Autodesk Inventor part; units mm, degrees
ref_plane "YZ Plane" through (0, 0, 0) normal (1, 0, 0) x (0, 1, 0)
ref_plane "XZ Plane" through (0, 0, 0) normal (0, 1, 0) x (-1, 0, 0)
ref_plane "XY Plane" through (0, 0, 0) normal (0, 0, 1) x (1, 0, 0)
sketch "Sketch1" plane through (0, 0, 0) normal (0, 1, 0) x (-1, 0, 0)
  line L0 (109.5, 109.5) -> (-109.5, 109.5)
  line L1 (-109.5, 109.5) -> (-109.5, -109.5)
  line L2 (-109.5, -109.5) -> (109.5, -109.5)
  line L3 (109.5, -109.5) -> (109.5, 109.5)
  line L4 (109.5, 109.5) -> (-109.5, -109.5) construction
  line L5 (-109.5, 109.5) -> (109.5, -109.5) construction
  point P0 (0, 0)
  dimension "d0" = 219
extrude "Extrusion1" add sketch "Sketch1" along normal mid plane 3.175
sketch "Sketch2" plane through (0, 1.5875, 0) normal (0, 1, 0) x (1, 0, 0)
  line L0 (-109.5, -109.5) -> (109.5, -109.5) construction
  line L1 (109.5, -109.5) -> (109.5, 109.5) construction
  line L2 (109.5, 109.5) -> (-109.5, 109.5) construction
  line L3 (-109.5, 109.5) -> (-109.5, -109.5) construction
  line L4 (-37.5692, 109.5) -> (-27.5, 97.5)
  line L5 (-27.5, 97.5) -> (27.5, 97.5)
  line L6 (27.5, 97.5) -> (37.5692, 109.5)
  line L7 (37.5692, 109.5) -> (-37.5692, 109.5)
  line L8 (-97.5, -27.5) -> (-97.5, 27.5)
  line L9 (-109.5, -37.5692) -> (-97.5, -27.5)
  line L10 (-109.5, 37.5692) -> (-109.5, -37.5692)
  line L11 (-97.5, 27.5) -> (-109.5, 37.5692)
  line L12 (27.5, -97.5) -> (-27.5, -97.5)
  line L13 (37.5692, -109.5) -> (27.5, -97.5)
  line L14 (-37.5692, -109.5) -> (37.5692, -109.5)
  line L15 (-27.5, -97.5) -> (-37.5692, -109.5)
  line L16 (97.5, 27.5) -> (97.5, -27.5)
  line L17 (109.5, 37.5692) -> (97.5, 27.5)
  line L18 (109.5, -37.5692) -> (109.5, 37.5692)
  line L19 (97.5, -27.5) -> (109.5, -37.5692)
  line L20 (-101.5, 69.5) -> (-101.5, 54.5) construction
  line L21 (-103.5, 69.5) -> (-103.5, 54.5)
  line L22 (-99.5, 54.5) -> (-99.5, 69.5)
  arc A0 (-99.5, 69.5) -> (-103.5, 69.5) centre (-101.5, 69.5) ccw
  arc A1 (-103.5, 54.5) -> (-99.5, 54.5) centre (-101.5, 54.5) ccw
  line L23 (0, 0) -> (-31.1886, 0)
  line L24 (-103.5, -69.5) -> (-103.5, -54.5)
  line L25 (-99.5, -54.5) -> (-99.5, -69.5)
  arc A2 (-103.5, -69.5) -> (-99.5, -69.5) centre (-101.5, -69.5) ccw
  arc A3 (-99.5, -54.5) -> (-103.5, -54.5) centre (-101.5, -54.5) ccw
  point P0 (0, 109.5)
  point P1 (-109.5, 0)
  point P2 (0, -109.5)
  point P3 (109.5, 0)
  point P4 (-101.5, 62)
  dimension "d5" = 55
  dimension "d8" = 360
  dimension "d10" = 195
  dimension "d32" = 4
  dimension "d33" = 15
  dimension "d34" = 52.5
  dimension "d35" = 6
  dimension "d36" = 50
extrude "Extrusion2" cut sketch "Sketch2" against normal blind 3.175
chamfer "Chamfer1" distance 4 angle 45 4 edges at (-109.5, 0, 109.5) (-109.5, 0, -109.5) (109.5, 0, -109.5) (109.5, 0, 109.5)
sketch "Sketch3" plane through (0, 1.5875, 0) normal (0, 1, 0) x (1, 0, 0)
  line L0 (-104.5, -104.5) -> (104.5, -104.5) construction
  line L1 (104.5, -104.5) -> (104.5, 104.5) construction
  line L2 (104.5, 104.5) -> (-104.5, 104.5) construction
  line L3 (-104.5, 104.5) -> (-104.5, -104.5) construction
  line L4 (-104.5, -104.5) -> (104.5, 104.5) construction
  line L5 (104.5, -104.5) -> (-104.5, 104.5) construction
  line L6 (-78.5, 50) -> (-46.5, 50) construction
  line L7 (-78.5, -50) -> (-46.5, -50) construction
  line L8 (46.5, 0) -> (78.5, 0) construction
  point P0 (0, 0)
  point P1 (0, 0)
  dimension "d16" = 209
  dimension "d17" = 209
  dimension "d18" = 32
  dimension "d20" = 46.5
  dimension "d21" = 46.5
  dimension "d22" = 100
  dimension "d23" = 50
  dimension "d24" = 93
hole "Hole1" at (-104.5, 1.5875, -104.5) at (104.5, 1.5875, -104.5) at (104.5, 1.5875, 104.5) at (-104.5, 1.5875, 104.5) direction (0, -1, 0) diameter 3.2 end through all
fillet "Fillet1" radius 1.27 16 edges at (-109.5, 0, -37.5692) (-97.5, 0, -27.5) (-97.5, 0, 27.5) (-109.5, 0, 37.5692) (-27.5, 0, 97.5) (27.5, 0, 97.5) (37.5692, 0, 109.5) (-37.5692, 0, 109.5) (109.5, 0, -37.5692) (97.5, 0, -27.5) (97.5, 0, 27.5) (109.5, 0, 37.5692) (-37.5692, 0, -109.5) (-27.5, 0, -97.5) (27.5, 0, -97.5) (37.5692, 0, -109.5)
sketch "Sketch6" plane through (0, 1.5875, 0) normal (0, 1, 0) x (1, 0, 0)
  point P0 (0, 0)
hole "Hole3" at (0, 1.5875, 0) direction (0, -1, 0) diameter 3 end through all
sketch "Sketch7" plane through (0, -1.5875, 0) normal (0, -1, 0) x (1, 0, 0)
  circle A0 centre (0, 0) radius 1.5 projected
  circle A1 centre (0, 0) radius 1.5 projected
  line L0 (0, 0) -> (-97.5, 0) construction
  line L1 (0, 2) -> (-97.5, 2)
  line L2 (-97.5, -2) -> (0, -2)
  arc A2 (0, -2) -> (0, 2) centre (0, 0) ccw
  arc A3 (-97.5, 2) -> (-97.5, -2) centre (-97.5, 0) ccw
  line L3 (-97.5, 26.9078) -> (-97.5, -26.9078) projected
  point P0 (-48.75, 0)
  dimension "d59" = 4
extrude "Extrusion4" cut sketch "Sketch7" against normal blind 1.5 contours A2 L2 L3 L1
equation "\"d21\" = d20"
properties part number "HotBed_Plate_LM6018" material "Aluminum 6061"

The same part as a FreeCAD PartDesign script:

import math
import FreeCAD as App
import Part
import Sketcher

V = App.Vector
Q = App.Units.Quantity


def edges_at(feature, points):
    """Names of the edges that pass closest to the given points."""
    edges = feature.Shape.Edges
    near = lambda p: min(range(len(edges)), key=lambda i: edges[i].distToShape(Part.Vertex(*p))[0])
    return sorted({f"Edge{near(p) + 1}" for p in points})

doc = App.newDocument("Part")
body = doc.addObject("PartDesign::Body", "Body")

# Sketch on XZ plane
sketch1 = doc.addObject("Sketcher::SketchObject", "Sketch")
body.addObject(sketch1)
sketch1.AttachmentSupport = (doc.XZ_Plane, [""])
sketch1.MapMode = "FlatFace"
sketch1.addGeometry([
    Part.LineSegment(V(-110, -110, 0), V(-110, 110, 0)),
    Part.LineSegment(V(-110, 110, 0), V(110, 110, 0)),
    Part.LineSegment(V(110, 110, 0), V(110, -110, 0)),
    Part.LineSegment(V(110, -110, 0), V(-110, -110, 0)),
], False)
sketch1.addConstraint([
    Sketcher.Constraint("Coincident", 0, 2, 1, 1),
    Sketcher.Constraint("Coincident", 1, 2, 2, 1),
    Sketcher.Constraint("Coincident", 2, 2, 3, 1),
    Sketcher.Constraint("Coincident", 3, 2, 0, 1),
    Sketcher.Constraint("Vertical", 0),
    Sketcher.Constraint("Horizontal", 1),
    Sketcher.Constraint("Vertical", 2),
    Sketcher.Constraint("Horizontal", 3),
    Sketcher.Constraint("Symmetric", 0, 2, 2, 2, -1, 1),
    Sketcher.Constraint("Equal", 3, 0),
    Sketcher.Constraint("DistanceX", 1, 1, 1, 2, 219.0),
])
pad1 = doc.addObject("PartDesign::Pad", "Pad")
body.addObject(pad1)
pad1.Profile = sketch1
pad1.Length = 3.175
pad1.Midplane = True

# Sketch on XZ plane
sketch2 = doc.addObject("Sketcher::SketchObject", "Sketch001")
body.addObject(sketch2)
sketch2.AttachmentSupport = (doc.XZ_Plane, [""])
sketch2.MapMode = "FlatFace"
sketch2.AttachmentOffset = App.Placement(V(0, 0, -1.5875), App.Rotation())
sketch2.addGeometry([
    Part.LineSegment(V(37.6, -109.5, 0), V(-37.6, -109.5, 0)),  # 0
    Part.LineSegment(V(-37.6, -109.5, 0), V(-27.5, -97.5, 0)),  # 1
    Part.LineSegment(V(-27.5, -97.5, 0), V(27.5, -97.5, 0)),  # 2
    Part.LineSegment(V(27.5, -97.5, 0), V(37.6, -109.5, 0)),  # 3
    Part.LineSegment(V(-109.5, 37.6, 0), V(-97.5, 27.5, 0)),  # 4
    Part.LineSegment(V(-97.5, 27.5, 0), V(-97.5, -27.5, 0)),  # 5
    Part.LineSegment(V(-97.5, -27.5, 0), V(-109.5, -37.6, 0)),  # 6
    Part.LineSegment(V(-109.5, -37.6, 0), V(-109.5, 37.6, 0)),  # 7
    Part.LineSegment(V(37.6, 109.5, 0), V(27.5, 97.5, 0)),  # 8
    Part.LineSegment(V(27.5, 97.5, 0), V(-27.5, 97.5, 0)),  # 9
    Part.LineSegment(V(-27.5, 97.5, 0), V(-37.6, 109.5, 0)),  # 10
    Part.LineSegment(V(-37.6, 109.5, 0), V(37.6, 109.5, 0)),  # 11
    Part.LineSegment(V(109.5, -37.6, 0), V(97.5, -27.5, 0)),  # 12
    Part.LineSegment(V(97.5, -27.5, 0), V(97.5, 27.5, 0)),  # 13
    Part.LineSegment(V(97.5, 27.5, 0), V(109.5, 37.6, 0)),  # 14
    Part.LineSegment(V(109.5, 37.6, 0), V(109.5, -37.6, 0)),  # 15
    Part.ArcOfCircle(Part.Circle(V(-101.5, -69.5, 0), V(0, 0, 1), 2), math.radians(180), math.radians(360)),  # 16
    Part.LineSegment(V(-103.5, -69.5, 0), V(-103.5, -54.5, 0)),  # 17
    Part.ArcOfCircle(Part.Circle(V(-101.5, -54.5, 0), V(0, 0, 1), 2), math.radians(0), math.radians(180)),  # 18
    Part.LineSegment(V(-99.5, -54.5, 0), V(-99.5, -69.5, 0)),  # 19
    Part.LineSegment(V(-103.5, 54.5, 0), V(-103.5, 69.5, 0)),  # 20
    Part.ArcOfCircle(Part.Circle(V(-101.5, 69.5, 0), V(0, 0, 1), 2), math.radians(0), math.radians(180)),  # 21
    Part.LineSegment(V(-99.5, 69.5, 0), V(-99.5, 54.5, 0)),  # 22
    Part.ArcOfCircle(Part.Circle(V(-101.5, 54.5, 0), V(0, 0, 1), 2), math.radians(180), math.radians(360)),  # 23
], False)
sketch2.addConstraint([
    Sketcher.Constraint("Coincident", 0, 2, 1, 1),
    Sketcher.Constraint("Coincident", 1, 2, 2, 1),
    Sketcher.Constraint("Coincident", 2, 2, 3, 1),
    Sketcher.Constraint("Coincident", 3, 2, 0, 1),
    Sketcher.Constraint("Coincident", 4, 2, 5, 1),
    Sketcher.Constraint("Coincident", 5, 2, 6, 1),
    Sketcher.Constraint("Coincident", 6, 2, 7, 1),
    Sketcher.Constraint("Coincident", 7, 2, 4, 1),
    Sketcher.Constraint("Coincident", 8, 2, 9, 1),
    Sketcher.Constraint("Coincident", 9, 2, 10, 1),
    Sketcher.Constraint("Coincident", 10, 2, 11, 1),
    Sketcher.Constraint("Coincident", 11, 2, 8, 1),
    Sketcher.Constraint("Coincident", 12, 2, 13, 1),
    Sketcher.Constraint("Coincident", 13, 2, 14, 1),
    Sketcher.Constraint("Coincident", 14, 2, 15, 1),
    Sketcher.Constraint("Coincident", 15, 2, 12, 1),
    Sketcher.Constraint("Tangent", 16, 1, 17, 1),
    Sketcher.Constraint("Tangent", 17, 2, 18, 2),
    Sketcher.Constraint("Tangent", 18, 1, 19, 1),
    Sketcher.Constraint("Tangent", 19, 2, 16, 2),
    Sketcher.Constraint("Tangent", 20, 2, 21, 2),
    Sketcher.Constraint("Tangent", 21, 1, 22, 1),
    Sketcher.Constraint("Tangent", 22, 2, 23, 2),
    Sketcher.Constraint("Tangent", 23, 1, 20, 1),
    Sketcher.Constraint("Horizontal", 0),
    Sketcher.Constraint("Horizontal", 2),
    Sketcher.Constraint("Vertical", 5),
    Sketcher.Constraint("Vertical", 7),
    Sketcher.Constraint("Horizontal", 9),
    Sketcher.Constraint("Horizontal", 11),
    Sketcher.Constraint("Vertical", 13),
    Sketcher.Constraint("Vertical", 15),
    Sketcher.Constraint("Vertical", 17),
    Sketcher.Constraint("Vertical", 19),
    Sketcher.Constraint("Vertical", 20),
    Sketcher.Constraint("Vertical", 22),
    Sketcher.Constraint("Equal", 18, 21),
    Sketcher.Constraint("Symmetric", 1, 2, 8, 2, -1, 1),
    Sketcher.Constraint("Symmetric", 3, 2, 10, 2, -1, 1),
    Sketcher.Constraint("Symmetric", 4, 2, 12, 2, -1, 1),
    Sketcher.Constraint("Symmetric", 6, 2, 14, 2, -1, 1),
    Sketcher.Constraint("Symmetric", 16, 3, 21, 3, -1),
    Sketcher.Constraint("Perpendicular", 1, 4),
    Sketcher.Constraint("Perpendicular", 3, 6),
    Sketcher.Constraint("Perpendicular", 4, 8),
    Sketcher.Constraint("Perpendicular", 6, 10),
    Sketcher.Constraint("Perpendicular", 8, 12),
    Sketcher.Constraint("Perpendicular", 10, 14),
    Sketcher.Constraint("Horizontal", 5, 2, 12, 2),
    Sketcher.Constraint("Horizontal", 7, 2, 14, 2),
    Sketcher.Constraint("Vertical", 2, 2, 8, 2),
    Sketcher.Constraint("Equal", 9, 5),
    Sketcher.Constraint("Equal", 11, 7),
    Sketcher.Constraint("Equal", 19, 20),
    Sketcher.Constraint("Radius", 16, 2.0),
    Sketcher.Constraint("DistanceX", 2, 1, 2, 2, 55.0),
    Sketcher.Constraint("DistanceY", 17, 1, 17, 2, 15.0),
    Sketcher.Constraint("Angle", 1, Q("50 deg")),
    Sketcher.Constraint("DistanceY", 0, 2, 18, 3, 55.0),
    Sketcher.Constraint("DistanceX", 23, 3, 4, 2, 4.0),
    Sketcher.Constraint("DistanceX", 6, 2, 16, 1, 6.0),
    Sketcher.Constraint("DistanceY", 18, 3, 21, 3, 124.0),
    Sketcher.Constraint("DistanceX", 16, 3, 1, 2, 74.0),
])
pocket1 = doc.addObject("PartDesign::Pocket", "Pocket")
body.addObject(pocket1)
pocket1.Profile = sketch2
pocket1.Length = 3.175
pocket1.Reversed = True
doc.recompute()

chamfer = doc.addObject("PartDesign::Chamfer", "Chamfer")
body.addObject(chamfer)
chamfer.Base = (pocket1, edges_at(pocket1, [
    (-109.5, 0, 109.5),
    (-109.5, 0, -109.5),
    (109.5, 0, -109.5),
    (109.5, 0, 109.5),
]))
chamfer.Size = 4

# Sketch on XZ plane
sketch3 = doc.addObject("Sketcher::SketchObject", "Sketch002")
body.addObject(sketch3)
sketch3.AttachmentSupport = (doc.XZ_Plane, [""])
sketch3.MapMode = "FlatFace"
sketch3.AttachmentOffset = App.Placement(V(0, 0, -1.5875), App.Rotation())
sketch3.addGeometry([
    Part.Circle(V(-104.5, -104.5, 0), V(0, 0, 1), 1.6),
    Part.Circle(V(104.5, -104.5, 0), V(0, 0, 1), 1.6),
    Part.Circle(V(104.5, 104.5, 0), V(0, 0, 1), 1.6),
    Part.Circle(V(-104.5, 104.5, 0), V(0, 0, 1), 1.6),
], False)
sketch3.addConstraint([
    Sketcher.Constraint("Equal", 0, 1),
    Sketcher.Constraint("Equal", 1, 2),
    Sketcher.Constraint("Equal", 2, 3),
    Sketcher.Constraint("Symmetric", 0, 3, 2, 3, -1, 1),
    Sketcher.Constraint("Symmetric", 1, 3, 3, 3, -1, 1),
    Sketcher.Constraint("Symmetric", 0, 3, 1, 3, -2),
    Sketcher.Constraint("Diameter", 0, 3.2),
    Sketcher.Constraint("DistanceX", 0, 3, 1, 3, 209.0),
    Sketcher.Constraint("DistanceY", 1, 3, 2, 3, 209.0),
])
doc.recompute()
hole = doc.addObject("PartDesign::Hole", "Hole")
body.addObject(hole)
hole.Profile = sketch3
hole.ThreadType = "None"
hole.Diameter = 3.2
hole.DepthType = "ThroughAll"
hole.Reversed = True
doc.recompute()

fillet = doc.addObject("PartDesign::Fillet", "Fillet")
body.addObject(fillet)
fillet.Base = (hole, edges_at(hole, [
    (-109.5, 0, -37.569),
    (-97.5, 0, -27.5),
    (-97.5, 0, 27.5),
    (-109.5, 0, 37.569),
    (-27.5, 0, 97.5),
    (27.5, 0, 97.5),
    (37.569, 0, 109.5),
    (-37.569, 0, 109.5),
    (109.5, 0, -37.569),
    (97.5, 0, -27.5),
    (97.5, 0, 27.5),
    (109.5, 0, 37.569),
    (-37.569, 0, -109.5),
    (-27.5, 0, -97.5),
    (27.5, 0, -97.5),
    (37.569, 0, -109.5),
]))
fillet.Radius = 1.27

# Sketch on XZ plane
sketch4 = doc.addObject("Sketcher::SketchObject", "Sketch003")
body.addObject(sketch4)
sketch4.AttachmentSupport = (doc.XZ_Plane, [""])
sketch4.MapMode = "FlatFace"
sketch4.AttachmentOffset = App.Placement(V(0, 0, -1.5875), App.Rotation())
sketch4.addGeometry(Part.Circle(V(0, 0, 0), V(0, 0, 1), 1.5), False)
sketch4.addConstraint([
    Sketcher.Constraint("Coincident", 0, 3, -1, 1),
    Sketcher.Constraint("Diameter", 0, 3.0),
])
doc.recompute()
hole2 = doc.addObject("PartDesign::Hole", "Hole001")
body.addObject(hole2)
hole2.Profile = sketch4
hole2.ThreadType = "None"
hole2.Diameter = 3
hole2.DepthType = "ThroughAll"
hole2.Reversed = True

# Sketch on XZ plane
sketch5 = doc.addObject("Sketcher::SketchObject", "Sketch004")
body.addObject(sketch5)
sketch5.AttachmentSupport = (doc.XZ_Plane, [""])
sketch5.MapMode = "FlatFace"
sketch5.AttachmentOffset = App.Placement(V(0, 0, 1.5875), App.Rotation())
sketch5.addGeometry([
    Part.ArcOfCircle(Part.Circle(V(0, 0, 0), V(0, 0, 1), 2), math.radians(-90), math.radians(90)),  # 0
    Part.LineSegment(V(0, 2, 0), V(-97.5, 2, 0)),  # 1
    Part.LineSegment(V(-97.5, 2, 0), V(-97.5, -2, 0)),  # 2
    Part.LineSegment(V(-97.5, -2, 0), V(0, -2, 0)),  # 3
    Part.Circle(V(0, 0, 0), V(0, 0, 1), 1.5),  # 4
], False)
sketch5.addConstraint([
    Sketcher.Constraint("Tangent", 0, 2, 1, 1),
    Sketcher.Constraint("Coincident", 1, 2, 2, 1),
    Sketcher.Constraint("Coincident", 2, 2, 3, 1),
    Sketcher.Constraint("Tangent", 3, 2, 0, 1),
    Sketcher.Constraint("Horizontal", 1),
    Sketcher.Constraint("Vertical", 2),
    Sketcher.Constraint("Horizontal", 3),
    Sketcher.Constraint("Coincident", 0, 3, -1, 1),
    Sketcher.Constraint("Coincident", 4, 3, -1, 1),
    Sketcher.Constraint("Radius", 0, 2.0),
    Sketcher.Constraint("Diameter", 4, 3.0),
    Sketcher.Constraint("DistanceX", 1, 2, 1, 1, 97.5),
])
pocket2 = doc.addObject("PartDesign::Pocket", "Pocket001")
body.addObject(pocket2)
pocket2.Profile = sketch5
pocket2.Length = 1.5

doc.recompute()
